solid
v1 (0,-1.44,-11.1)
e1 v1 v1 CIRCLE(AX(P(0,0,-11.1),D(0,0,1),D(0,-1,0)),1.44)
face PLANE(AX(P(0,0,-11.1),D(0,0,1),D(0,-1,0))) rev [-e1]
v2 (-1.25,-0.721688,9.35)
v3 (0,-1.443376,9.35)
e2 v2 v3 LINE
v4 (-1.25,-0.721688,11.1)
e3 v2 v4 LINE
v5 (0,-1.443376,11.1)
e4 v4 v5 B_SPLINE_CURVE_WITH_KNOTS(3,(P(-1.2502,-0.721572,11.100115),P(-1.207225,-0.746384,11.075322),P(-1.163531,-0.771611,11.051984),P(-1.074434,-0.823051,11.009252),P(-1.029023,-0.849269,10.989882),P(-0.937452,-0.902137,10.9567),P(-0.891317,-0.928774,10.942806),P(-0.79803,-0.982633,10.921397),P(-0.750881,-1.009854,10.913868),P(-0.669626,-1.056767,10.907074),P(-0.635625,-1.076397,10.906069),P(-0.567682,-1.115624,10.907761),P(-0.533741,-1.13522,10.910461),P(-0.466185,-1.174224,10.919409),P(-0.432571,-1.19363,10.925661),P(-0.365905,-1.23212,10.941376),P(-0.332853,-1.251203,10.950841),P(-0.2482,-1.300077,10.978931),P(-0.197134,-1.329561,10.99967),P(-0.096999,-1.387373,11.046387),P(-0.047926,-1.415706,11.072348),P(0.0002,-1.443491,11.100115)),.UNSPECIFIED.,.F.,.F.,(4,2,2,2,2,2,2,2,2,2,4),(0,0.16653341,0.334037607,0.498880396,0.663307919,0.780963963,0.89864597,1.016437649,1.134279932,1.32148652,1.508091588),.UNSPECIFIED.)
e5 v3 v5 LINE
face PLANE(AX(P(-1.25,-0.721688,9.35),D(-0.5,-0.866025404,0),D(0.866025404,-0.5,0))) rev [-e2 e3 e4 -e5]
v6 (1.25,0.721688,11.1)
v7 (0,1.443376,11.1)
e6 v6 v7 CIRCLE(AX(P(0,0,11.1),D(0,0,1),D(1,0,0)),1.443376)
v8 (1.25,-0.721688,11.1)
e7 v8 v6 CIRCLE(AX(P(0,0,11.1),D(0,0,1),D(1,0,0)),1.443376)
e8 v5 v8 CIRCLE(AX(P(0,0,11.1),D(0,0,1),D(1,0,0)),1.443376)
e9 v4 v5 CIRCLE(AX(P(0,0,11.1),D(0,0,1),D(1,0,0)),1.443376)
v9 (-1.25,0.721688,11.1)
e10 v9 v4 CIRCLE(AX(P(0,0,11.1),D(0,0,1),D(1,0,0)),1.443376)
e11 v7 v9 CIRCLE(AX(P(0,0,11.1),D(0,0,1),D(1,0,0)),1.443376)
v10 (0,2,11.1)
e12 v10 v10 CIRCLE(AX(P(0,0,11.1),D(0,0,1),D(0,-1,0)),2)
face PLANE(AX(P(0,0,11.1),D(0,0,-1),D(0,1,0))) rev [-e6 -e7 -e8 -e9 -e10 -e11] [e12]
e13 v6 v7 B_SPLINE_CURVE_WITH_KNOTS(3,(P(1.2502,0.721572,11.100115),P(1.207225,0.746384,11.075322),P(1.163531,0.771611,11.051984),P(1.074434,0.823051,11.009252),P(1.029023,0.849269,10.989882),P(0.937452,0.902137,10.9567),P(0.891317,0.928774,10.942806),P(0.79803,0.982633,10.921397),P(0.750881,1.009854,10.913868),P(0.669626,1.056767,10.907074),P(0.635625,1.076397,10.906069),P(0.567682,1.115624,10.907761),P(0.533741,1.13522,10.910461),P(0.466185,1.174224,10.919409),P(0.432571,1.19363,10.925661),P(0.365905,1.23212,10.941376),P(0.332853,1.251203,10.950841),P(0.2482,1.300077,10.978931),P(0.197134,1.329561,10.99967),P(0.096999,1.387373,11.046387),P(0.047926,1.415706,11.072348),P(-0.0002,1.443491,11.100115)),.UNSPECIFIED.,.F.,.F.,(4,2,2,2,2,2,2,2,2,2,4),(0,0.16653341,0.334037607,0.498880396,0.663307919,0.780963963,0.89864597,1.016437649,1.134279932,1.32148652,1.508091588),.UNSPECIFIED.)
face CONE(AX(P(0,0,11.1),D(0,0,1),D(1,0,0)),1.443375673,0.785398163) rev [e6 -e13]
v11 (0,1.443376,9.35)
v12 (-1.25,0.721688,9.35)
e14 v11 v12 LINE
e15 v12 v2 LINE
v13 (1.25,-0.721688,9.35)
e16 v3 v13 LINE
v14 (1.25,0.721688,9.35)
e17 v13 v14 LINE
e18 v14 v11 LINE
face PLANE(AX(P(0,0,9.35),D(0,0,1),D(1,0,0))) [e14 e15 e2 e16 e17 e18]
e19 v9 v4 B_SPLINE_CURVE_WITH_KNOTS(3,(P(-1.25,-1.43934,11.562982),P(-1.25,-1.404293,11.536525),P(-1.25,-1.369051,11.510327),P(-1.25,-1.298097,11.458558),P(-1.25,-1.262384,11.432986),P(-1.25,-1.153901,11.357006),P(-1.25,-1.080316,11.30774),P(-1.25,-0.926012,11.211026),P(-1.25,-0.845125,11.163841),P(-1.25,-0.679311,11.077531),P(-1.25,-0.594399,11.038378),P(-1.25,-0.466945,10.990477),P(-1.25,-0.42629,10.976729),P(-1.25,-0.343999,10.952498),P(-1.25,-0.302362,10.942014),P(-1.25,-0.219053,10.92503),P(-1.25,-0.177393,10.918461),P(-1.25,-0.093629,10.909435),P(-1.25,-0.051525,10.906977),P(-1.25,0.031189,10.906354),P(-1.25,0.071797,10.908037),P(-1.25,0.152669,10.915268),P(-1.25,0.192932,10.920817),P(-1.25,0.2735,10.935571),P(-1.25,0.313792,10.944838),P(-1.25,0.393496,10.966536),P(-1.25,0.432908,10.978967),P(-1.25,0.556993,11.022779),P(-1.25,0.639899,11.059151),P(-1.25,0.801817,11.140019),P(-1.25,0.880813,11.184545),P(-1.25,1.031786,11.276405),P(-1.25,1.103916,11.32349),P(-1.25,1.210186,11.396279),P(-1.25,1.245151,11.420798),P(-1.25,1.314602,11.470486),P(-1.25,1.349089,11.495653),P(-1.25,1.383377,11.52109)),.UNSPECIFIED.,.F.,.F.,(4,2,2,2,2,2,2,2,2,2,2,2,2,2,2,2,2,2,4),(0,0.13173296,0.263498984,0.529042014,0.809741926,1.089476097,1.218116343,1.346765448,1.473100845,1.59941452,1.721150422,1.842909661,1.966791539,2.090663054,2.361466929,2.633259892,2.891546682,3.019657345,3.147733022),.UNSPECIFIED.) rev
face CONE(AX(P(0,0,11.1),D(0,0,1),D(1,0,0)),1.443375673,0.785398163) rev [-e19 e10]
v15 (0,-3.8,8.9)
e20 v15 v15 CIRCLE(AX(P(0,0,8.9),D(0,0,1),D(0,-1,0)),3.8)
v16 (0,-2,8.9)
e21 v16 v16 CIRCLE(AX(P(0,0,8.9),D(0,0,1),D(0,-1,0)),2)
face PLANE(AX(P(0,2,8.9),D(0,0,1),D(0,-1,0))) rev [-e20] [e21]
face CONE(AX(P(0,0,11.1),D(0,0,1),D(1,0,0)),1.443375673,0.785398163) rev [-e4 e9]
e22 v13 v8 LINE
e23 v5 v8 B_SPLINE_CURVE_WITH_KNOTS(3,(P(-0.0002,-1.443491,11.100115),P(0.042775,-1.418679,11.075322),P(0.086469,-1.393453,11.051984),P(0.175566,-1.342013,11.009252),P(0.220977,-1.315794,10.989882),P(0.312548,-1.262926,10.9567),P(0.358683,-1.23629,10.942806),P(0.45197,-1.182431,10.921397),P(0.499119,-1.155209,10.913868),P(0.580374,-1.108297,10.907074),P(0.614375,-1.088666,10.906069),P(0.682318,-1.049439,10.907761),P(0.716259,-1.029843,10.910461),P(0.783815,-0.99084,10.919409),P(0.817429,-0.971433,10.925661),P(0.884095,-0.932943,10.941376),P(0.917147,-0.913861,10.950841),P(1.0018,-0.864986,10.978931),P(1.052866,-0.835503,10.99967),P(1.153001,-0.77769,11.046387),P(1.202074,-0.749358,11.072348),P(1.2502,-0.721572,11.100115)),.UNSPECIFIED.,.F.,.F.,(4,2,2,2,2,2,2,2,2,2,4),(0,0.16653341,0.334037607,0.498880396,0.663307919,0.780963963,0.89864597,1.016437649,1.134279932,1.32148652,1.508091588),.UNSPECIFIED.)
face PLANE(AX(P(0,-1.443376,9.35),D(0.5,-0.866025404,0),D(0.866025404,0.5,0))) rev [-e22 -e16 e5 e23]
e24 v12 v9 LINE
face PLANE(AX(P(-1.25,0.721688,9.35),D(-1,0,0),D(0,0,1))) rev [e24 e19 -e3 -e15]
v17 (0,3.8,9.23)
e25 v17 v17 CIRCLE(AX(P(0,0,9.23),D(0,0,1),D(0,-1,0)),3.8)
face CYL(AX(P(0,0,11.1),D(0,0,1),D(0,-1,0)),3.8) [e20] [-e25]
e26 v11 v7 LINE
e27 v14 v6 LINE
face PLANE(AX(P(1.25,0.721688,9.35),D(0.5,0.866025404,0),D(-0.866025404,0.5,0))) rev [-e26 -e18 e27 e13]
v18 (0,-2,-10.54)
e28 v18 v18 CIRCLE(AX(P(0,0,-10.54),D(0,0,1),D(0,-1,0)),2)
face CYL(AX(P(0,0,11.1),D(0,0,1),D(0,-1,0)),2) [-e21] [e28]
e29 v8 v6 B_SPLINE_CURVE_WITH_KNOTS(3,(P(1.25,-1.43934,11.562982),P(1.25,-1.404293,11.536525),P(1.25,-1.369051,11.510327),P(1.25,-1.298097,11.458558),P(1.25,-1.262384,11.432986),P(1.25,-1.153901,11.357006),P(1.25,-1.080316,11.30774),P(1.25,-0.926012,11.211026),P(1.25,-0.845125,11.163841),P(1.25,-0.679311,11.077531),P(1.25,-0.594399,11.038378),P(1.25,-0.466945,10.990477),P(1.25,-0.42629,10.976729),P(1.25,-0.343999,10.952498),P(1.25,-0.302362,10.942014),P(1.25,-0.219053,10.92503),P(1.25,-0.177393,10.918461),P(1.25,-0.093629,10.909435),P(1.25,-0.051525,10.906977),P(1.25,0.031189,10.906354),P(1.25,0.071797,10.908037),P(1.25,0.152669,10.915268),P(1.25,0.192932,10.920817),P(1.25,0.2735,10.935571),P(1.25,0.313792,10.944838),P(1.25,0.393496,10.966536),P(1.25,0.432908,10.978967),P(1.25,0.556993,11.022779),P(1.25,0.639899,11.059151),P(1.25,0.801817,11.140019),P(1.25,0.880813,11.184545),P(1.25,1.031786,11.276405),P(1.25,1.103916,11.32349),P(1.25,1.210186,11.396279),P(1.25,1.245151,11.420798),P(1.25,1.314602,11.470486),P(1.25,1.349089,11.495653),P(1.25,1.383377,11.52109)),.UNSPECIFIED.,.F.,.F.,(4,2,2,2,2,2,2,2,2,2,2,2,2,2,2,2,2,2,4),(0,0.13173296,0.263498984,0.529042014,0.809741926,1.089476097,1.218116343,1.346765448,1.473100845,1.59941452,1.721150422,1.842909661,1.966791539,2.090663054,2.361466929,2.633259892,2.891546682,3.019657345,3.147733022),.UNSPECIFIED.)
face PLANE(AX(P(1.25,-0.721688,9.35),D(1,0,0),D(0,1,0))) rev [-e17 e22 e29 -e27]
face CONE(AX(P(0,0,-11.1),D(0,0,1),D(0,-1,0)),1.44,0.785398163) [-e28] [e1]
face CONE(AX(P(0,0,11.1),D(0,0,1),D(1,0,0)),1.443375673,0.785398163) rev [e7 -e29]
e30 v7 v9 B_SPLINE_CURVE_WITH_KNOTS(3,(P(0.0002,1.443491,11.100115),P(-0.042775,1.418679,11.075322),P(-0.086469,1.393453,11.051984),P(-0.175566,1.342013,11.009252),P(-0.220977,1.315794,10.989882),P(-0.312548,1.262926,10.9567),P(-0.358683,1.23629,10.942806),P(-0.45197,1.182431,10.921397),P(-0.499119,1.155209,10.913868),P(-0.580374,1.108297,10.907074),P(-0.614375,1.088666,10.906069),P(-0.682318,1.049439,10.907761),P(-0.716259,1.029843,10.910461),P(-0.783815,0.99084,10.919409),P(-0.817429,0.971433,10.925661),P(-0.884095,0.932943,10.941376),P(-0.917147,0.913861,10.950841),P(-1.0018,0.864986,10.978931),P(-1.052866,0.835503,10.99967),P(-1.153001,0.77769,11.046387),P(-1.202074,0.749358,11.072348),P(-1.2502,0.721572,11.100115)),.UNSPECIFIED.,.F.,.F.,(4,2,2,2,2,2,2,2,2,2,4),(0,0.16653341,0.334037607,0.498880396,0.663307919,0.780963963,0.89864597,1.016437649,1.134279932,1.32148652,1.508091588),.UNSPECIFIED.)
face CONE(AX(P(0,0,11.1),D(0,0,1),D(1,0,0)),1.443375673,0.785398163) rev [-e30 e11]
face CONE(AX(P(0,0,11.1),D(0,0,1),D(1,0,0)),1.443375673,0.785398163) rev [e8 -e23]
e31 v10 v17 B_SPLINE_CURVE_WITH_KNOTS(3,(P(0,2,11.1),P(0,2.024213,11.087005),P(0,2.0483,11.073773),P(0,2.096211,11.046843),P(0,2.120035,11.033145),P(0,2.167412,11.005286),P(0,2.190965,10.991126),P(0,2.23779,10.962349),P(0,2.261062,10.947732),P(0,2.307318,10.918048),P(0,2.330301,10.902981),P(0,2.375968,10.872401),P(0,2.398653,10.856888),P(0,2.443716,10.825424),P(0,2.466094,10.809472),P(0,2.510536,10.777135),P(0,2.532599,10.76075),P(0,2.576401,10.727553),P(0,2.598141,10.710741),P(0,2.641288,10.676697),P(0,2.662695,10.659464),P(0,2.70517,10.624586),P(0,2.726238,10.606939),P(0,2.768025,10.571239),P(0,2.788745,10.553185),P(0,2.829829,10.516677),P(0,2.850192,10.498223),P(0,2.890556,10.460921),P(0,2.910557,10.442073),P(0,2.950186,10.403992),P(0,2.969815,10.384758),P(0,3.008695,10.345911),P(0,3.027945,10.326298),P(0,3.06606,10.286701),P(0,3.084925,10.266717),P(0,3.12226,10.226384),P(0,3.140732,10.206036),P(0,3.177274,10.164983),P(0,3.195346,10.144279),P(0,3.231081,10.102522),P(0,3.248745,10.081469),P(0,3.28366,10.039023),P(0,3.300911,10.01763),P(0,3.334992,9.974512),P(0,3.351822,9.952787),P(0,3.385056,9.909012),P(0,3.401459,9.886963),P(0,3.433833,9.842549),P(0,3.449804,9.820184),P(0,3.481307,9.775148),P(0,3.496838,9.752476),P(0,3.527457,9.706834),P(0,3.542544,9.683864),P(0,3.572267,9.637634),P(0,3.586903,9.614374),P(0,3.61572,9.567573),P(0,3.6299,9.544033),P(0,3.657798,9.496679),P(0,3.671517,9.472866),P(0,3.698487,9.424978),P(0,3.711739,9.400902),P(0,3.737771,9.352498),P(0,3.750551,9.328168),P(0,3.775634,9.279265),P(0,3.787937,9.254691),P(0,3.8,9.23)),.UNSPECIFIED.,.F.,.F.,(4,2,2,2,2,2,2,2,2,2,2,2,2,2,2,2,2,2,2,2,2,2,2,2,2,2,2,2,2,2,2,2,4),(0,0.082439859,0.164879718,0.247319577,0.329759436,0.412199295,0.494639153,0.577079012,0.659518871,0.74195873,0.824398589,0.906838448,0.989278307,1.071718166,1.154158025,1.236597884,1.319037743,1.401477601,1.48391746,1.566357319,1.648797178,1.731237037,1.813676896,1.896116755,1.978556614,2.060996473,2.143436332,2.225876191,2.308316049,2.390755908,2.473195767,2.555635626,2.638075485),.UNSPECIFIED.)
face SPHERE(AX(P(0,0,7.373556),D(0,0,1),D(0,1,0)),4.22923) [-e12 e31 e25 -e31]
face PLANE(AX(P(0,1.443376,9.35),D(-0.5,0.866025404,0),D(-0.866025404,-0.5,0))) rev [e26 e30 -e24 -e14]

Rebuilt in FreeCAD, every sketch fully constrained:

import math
import FreeCAD as App
import Part
import Sketcher
Q = App.Units.Quantity

doc = App.newDocument("Part")
body = doc.addObject("PartDesign::Body", "Body")

# Sketch on YZ plane
sketch1 = body.newObject("Sketcher::SketchObject", "Sketch")
sketch1.AttachmentSupport = (doc.getObject("YZ_Plane"), [""])
sketch1.MapMode = "FlatFace"
sketch1.addGeometry(Part.LineSegment(App.Vector(0, 11.1, 0), App.Vector(0, -11.1, 0)), False)
sketch1.addGeometry(Part.LineSegment(App.Vector(0, -11.1, 0), App.Vector(1.44, -11.1, 0)), False)
sketch1.addGeometry(Part.LineSegment(App.Vector(1.44, -11.1, 0), App.Vector(2, -10.54, 0)), False)
sketch1.addGeometry(Part.LineSegment(App.Vector(2, -10.54, 0), App.Vector(2, 8.9, 0)), False)
sketch1.addGeometry(Part.LineSegment(App.Vector(2, 8.9, 0), App.Vector(3.8, 8.9, 0)), False)
sketch1.addGeometry(Part.LineSegment(App.Vector(3.8, 8.9, 0), App.Vector(3.8, 9.23, 0)), False)
sketch1.addGeometry(Part.ArcOfCircle(Part.Circle(App.Vector(0, 7.373556, 0), App.Vector(0, 0, 1), 4.22923), math.radians(26.03726), math.radians(61.777335)), False)
sketch1.addGeometry(Part.LineSegment(App.Vector(2, 11.1, 0), App.Vector(0, 11.1, 0)), False)
sketch1.addConstraint(Sketcher.Constraint("Coincident", 0, 2, 1, 1))
sketch1.addConstraint(Sketcher.Constraint("Coincident", 1, 2, 2, 1))
sketch1.addConstraint(Sketcher.Constraint("Coincident", 2, 2, 3, 1))
sketch1.addConstraint(Sketcher.Constraint("Coincident", 3, 2, 4, 1))
sketch1.addConstraint(Sketcher.Constraint("Coincident", 4, 2, 5, 1))
sketch1.addConstraint(Sketcher.Constraint("Coincident", 5, 2, 6, 1))
sketch1.addConstraint(Sketcher.Constraint("Coincident", 6, 2, 7, 1))
sketch1.addConstraint(Sketcher.Constraint("Coincident", 7, 2, 0, 1))
sketch1.addConstraint(Sketcher.Constraint("Vertical", 0))
sketch1.addConstraint(Sketcher.Constraint("Horizontal", 1))
sketch1.addConstraint(Sketcher.Constraint("Vertical", 3))
sketch1.addConstraint(Sketcher.Constraint("Horizontal", 4))
sketch1.addConstraint(Sketcher.Constraint("Vertical", 5))
sketch1.addConstraint(Sketcher.Constraint("Horizontal", 7))
sketch1.addConstraint(Sketcher.Constraint("Symmetric", 0, 2, 7, 2, -1, 1))
sketch1.addConstraint(Sketcher.Constraint("PointOnObject", 6, 3, -2))
sketch1.addConstraint(Sketcher.Constraint("Vertical", 3, 2, 6, 2))
sketch1.addConstraint(Sketcher.Constraint("DistanceX", 7, 2, 7, 1, Q("2 mm")))
sketch1.addConstraint(Sketcher.Constraint("Angle", 2, Q("45 deg")))
sketch1.addConstraint(Sketcher.Constraint("DistanceX", 4, 1, 4, 2, Q("1.8 mm")))
sketch1.addConstraint(Sketcher.Constraint("DistanceY", 0, 2, 0, 1, Q("22.2 mm")))
sketch1.addConstraint(Sketcher.Constraint("DistanceY", 1, 2, 3, 2, Q("20 mm")))
sketch1.addConstraint(Sketcher.Constraint("DistanceX", 1, 1, 1, 2, Q("1.44 mm")))
sketch1.addConstraint(Sketcher.Constraint("DistanceY", 5, 1, 5, 2, Q("0.33 mm")))
revolution = body.newObject("PartDesign::Revolution", "Revolution")
revolution.Profile = sketch1
revolution.ReferenceAxis = (sketch1, ["V_Axis"])
revolution.Angle = 360

# Sketch on XY plane
sketch2 = body.newObject("Sketcher::SketchObject", "Sketch001")
sketch2.AttachmentSupport = (doc.getObject("XY_Plane"), [""])
sketch2.MapMode = "FlatFace"
sketch2.AttachmentOffset = App.Placement(App.Vector(0, 0, 11.1), App.Rotation())
sketch2.addGeometry(Part.LineSegment(App.Vector(0, 1.443376, 0), App.Vector(-1.25, 0.721688, 0)), False)
sketch2.addGeometry(Part.LineSegment(App.Vector(-1.25, 0.721688, 0), App.Vector(-1.25, -0.721688, 0)), False)
sketch2.addGeometry(Part.LineSegment(App.Vector(-1.25, -0.721688, 0), App.Vector(0, -1.443376, 0)), False)
sketch2.addGeometry(Part.LineSegment(App.Vector(0, -1.443376, 0), App.Vector(1.25, -0.721688, 0)), False)
sketch2.addGeometry(Part.LineSegment(App.Vector(1.25, -0.721688, 0), App.Vector(1.25, 0.721688, 0)), False)
sketch2.addGeometry(Part.LineSegment(App.Vector(1.25, 0.721688, 0), App.Vector(0, 1.443376, 0)), False)
sketch2.addConstraint(Sketcher.Constraint("Coincident", 0, 2, 1, 1))
sketch2.addConstraint(Sketcher.Constraint("Coincident", 1, 2, 2, 1))
sketch2.addConstraint(Sketcher.Constraint("Coincident", 2, 2, 3, 1))
sketch2.addConstraint(Sketcher.Constraint("Coincident", 3, 2, 4, 1))
sketch2.addConstraint(Sketcher.Constraint("Coincident", 4, 2, 5, 1))
sketch2.addConstraint(Sketcher.Constraint("Coincident", 5, 2, 0, 1))
sketch2.addConstraint(Sketcher.Constraint("Vertical", 1))
sketch2.addConstraint(Sketcher.Constraint("Vertical", 4))
sketch2.addConstraint(Sketcher.Constraint("Symmetric", 0, 2, 3, 2, -1, 1))
sketch2.addConstraint(Sketcher.Constraint("Symmetric", 2, 2, 5, 2, -1, 1))
sketch2.addConstraint(Sketcher.Constraint("PointOnObject", 2, 2, -2))
sketch2.addConstraint(Sketcher.Constraint("Parallel", 2, 5))
sketch2.addConstraint(Sketcher.Constraint("Horizontal", 1, 2, 3, 2))
sketch2.addConstraint(Sketcher.Constraint("Angle", 0, Q("-150 deg")))
sketch2.addConstraint(Sketcher.Constraint("DistanceX", 1, 2, 3, 2, Q("2.5 mm")))
sketch2.addConstraint(Sketcher.Constraint("DistanceY", 1, 2, 1, 1, Q("1.443376 mm")))
pocket1 = body.newObject("PartDesign::Pocket", "Pocket")
pocket1.Profile = sketch2
pocket1.Length = 1.75

# Sketch on YZ plane
sketch3 = body.newObject("Sketcher::SketchObject", "Sketch002")
sketch3.AttachmentSupport = (doc.getObject("YZ_Plane"), [""])
sketch3.MapMode = "FlatFace"
sketch3.addGeometry(Part.LineSegment(App.Vector(0, 11.1, 0), App.Vector(-1.443376, 11.1, 0)), False)
sketch3.addGeometry(Part.LineSegment(App.Vector(-1.443376, 11.1, 0), App.Vector(0, 9.656624, 0)), False)
sketch3.addGeometry(Part.LineSegment(App.Vector(0, 9.656624, 0), App.Vector(0, 11.1, 0)), False)
sketch3.addConstraint(Sketcher.Constraint("Coincident", 0, 2, 1, 1))
sketch3.addConstraint(Sketcher.Constraint("Coincident", 1, 2, 2, 1))
sketch3.addConstraint(Sketcher.Constraint("Coincident", 2, 2, 0, 1))
sketch3.addConstraint(Sketcher.Constraint("Horizontal", 0))
sketch3.addConstraint(Sketcher.Constraint("Vertical", 2))
sketch3.addConstraint(Sketcher.Constraint("PointOnObject", 1, 2, -2))
sketch3.addConstraint(Sketcher.Constraint("Equal", 0, 2))
sketch3.addConstraint(Sketcher.Constraint("DistanceY", -1, 1, 0, 2, Q("11.1 mm")))
sketch3.addConstraint(Sketcher.Constraint("Distance", 1, Q("2.041241 mm")))
groove = body.newObject("PartDesign::Groove", "Groove")
groove.Profile = sketch3
groove.ReferenceAxis = (sketch3, ["V_Axis"])
groove.Angle = 360

doc.recompute()
